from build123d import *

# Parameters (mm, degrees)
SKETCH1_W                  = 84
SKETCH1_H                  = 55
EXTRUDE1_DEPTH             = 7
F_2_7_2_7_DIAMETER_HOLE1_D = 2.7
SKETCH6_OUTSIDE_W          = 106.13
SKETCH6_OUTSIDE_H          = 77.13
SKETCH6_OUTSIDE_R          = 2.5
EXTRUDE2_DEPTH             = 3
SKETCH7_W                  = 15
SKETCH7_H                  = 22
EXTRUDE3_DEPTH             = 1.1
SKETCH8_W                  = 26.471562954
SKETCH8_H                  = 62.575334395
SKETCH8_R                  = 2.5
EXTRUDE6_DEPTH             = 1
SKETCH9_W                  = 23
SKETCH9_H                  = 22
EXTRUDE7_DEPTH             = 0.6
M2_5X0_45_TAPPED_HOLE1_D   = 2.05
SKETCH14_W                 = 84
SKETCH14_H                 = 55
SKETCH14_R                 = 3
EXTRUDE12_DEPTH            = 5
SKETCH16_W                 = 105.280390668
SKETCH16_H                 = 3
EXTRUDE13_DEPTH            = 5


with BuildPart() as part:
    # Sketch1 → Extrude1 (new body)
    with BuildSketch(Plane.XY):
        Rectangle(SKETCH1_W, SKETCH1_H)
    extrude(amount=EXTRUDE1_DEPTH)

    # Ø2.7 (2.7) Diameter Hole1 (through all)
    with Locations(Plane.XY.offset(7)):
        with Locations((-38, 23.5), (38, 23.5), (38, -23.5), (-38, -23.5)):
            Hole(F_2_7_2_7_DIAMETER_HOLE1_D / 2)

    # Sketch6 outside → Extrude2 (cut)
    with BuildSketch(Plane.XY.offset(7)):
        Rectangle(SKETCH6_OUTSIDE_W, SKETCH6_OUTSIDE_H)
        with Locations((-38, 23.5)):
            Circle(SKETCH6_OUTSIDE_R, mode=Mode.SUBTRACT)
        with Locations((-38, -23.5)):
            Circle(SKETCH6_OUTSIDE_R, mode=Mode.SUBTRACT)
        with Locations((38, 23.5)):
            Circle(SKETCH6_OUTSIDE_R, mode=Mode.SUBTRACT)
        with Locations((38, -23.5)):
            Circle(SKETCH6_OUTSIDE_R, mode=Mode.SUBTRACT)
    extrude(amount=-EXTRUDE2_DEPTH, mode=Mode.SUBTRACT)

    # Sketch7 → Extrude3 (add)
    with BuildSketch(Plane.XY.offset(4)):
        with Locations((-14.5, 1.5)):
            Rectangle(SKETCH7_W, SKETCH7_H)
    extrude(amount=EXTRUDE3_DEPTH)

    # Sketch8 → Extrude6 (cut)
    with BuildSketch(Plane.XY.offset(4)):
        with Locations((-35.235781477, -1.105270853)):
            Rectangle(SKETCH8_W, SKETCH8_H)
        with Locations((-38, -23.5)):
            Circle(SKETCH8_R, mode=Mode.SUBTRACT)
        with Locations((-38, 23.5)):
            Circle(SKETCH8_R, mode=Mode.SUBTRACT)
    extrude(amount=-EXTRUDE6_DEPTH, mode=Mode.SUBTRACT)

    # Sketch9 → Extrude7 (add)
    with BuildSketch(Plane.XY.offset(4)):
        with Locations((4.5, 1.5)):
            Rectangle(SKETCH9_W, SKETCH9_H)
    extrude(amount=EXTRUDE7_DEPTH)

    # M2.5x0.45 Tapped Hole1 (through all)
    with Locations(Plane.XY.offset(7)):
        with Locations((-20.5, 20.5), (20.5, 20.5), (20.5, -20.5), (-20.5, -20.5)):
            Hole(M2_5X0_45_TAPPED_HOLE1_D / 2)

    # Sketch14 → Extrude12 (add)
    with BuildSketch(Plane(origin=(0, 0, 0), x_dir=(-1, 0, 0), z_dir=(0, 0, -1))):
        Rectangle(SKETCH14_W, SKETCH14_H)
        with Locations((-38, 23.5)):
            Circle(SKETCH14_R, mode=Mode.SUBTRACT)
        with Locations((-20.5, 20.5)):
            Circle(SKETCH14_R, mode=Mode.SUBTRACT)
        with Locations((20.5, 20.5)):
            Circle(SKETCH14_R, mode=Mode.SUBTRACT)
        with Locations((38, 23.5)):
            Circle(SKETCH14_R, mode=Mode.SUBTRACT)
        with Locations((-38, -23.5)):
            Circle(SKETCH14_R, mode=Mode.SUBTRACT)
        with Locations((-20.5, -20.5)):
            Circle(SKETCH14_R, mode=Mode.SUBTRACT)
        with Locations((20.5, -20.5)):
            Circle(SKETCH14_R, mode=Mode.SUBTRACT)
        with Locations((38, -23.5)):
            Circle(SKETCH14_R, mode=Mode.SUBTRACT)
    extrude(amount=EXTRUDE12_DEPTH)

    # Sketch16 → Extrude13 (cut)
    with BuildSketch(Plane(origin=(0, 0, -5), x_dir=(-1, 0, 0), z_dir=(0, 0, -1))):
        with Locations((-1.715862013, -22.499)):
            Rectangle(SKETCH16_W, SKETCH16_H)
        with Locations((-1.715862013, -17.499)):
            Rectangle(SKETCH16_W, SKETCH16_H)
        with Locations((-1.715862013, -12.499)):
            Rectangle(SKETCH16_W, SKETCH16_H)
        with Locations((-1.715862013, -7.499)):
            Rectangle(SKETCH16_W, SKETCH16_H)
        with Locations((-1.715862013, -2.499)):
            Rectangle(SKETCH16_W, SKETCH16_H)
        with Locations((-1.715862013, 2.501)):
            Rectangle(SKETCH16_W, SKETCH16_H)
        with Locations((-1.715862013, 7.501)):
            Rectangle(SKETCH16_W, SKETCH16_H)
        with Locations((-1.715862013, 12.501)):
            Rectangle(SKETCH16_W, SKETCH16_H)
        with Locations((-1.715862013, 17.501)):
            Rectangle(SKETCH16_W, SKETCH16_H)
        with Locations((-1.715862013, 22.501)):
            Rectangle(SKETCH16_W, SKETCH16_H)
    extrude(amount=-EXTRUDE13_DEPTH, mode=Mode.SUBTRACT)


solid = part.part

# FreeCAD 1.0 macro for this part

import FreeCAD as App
import Part
import Sketcher
from FreeCAD import Vector
Q = App.Units.Quantity


def add_polygon(sketch, points):
    """Adds a closed chain of lines whose ends are joined by coincident constraints."""
    first, n = sketch.GeometryCount, len(points)
    for a, b in zip(points, points[1:] + points[:1]):
        sketch.addGeometry(Part.LineSegment(App.Vector(*a, 0), App.Vector(*b, 0)), False)
    for i in range(n):
        sketch.addConstraint(Sketcher.Constraint("Coincident", first + i, 2, first + (i + 1) % n, 1))

doc = App.newDocument("Part")
params = doc.addObject("Spreadsheet::Sheet", "Params")
for row, (alias, value) in enumerate([
    ("sketch1_width", "84 mm"),
    ("sketch1_height", "55 mm"),
    ("pad1_length", "7 mm"),
    ("sketch2_diameter", "2.7 mm"),
    ("hole_diameter", "2.7 mm"),
    ("sketch3_diameter", "5 mm"),
    ("sketch3_width", "106.13 mm"),
    ("sketch3_height", "77.13 mm"),
    ("pocket1_length", "3 mm"),
    ("sketch4_width", "15 mm"),
    ("sketch4_height", "22 mm"),
    ("pad2_length", "1.1 mm"),
    ("sketch5_diameter", "5 mm"),
    ("pocket2_length", "1 mm"),
    ("sketch6_width", "23 mm"),
    ("sketch6_height", "22 mm"),
    ("pad3_length", "0.6 mm"),
    ("sketch7_diameter", "2.05 mm"),
    ("hole2_diameter", "2.05 mm"),
    ("sketch8_diameter", "6 mm"),
    ("sketch8_width", "84 mm"),
    ("sketch8_height", "55 mm"),
    ("pad4_length", "5 mm"),
    ("sketch9_height", "3 mm"),
    ("pocket3_length", "5 mm"),
], start=1):
    params.set(f"A{row}", alias)
    params.set(f"B{row}", "=" + value)
    params.setAlias(f"B{row}", alias)

body = doc.addObject("PartDesign::Body", "Body")

# Sketch on XY plane
sketch1 = body.newObject("Sketcher::SketchObject", "Sketch")
sketch1.AttachmentSupport = (doc.getObject("XY_Plane"), [""])
sketch1.MapMode = "FlatFace"
add_polygon(sketch1, [(-42, 28), (-42, -28), (42, -28), (42, 28)])  # lines 0-3
sketch1.addConstraint([
    Sketcher.Constraint("Vertical", 0),
    Sketcher.Constraint("Horizontal", 1),
    Sketcher.Constraint("Vertical", 2),
    Sketcher.Constraint("Horizontal", 3),
    Sketcher.Constraint("Symmetric", 0, 2, 2, 2, -1, 1),
    Sketcher.Constraint("DistanceX", 1, 1, 1, 2, Q("84 mm")),
    Sketcher.Constraint("DistanceY", 0, 2, 0, 1, Q("55 mm")),
])
sketch1.setExpression("Constraints[9]", "Params.sketch1_width")
sketch1.setExpression("Constraints[10]", "Params.sketch1_height")
pad1 = body.newObject("PartDesign::Pad", "Pad")
pad1.Profile = sketch1
pad1.setExpression("Length", "Params.pad1_length")

# Sketch on XY plane
sketch2 = body.newObject("Sketcher::SketchObject", "Sketch001")
sketch2.AttachmentSupport = (doc.getObject("XY_Plane"), [""])
sketch2.MapMode = "FlatFace"
sketch2.AttachmentOffset = App.Placement(Vector(0, 0, 7), App.Rotation())
sketch2.addGeometry([
    Part.Circle(Vector(-38, 23.5, 0), Vector(0, 0, 1), 1.4),
    Part.Circle(Vector(38, 23.5, 0), Vector(0, 0, 1), 1.4),
    Part.Circle(Vector(38, -23.5, 0), Vector(0, 0, 1), 1.4),
    Part.Circle(Vector(-38, -23.5, 0), Vector(0, 0, 1), 1.4),
], False)
sketch2.addConstraint([
    Sketcher.Constraint("Equal", 0, 1),
    Sketcher.Constraint("Equal", 1, 2),
    Sketcher.Constraint("Equal", 2, 3),
    Sketcher.Constraint("Symmetric", 0, 3, 2, 3, -1, 1),
    Sketcher.Constraint("Symmetric", 1, 3, 3, 3, -1, 1),
    Sketcher.Constraint("Symmetric", 0, 3, 1, 3, -2),
    Sketcher.Constraint("Diameter", 0, Q("2.7 mm")),
    Sketcher.Constraint("DistanceX", 0, 3, -1, 1, Q("38 mm")),
    Sketcher.Constraint("DistanceY", 2, 3, 1, 3, Q("47 mm")),
])
sketch2.setExpression("Constraints[6]", "Params.sketch2_diameter")
doc.recompute()
hole = body.newObject("PartDesign::Hole", "Hole")
hole.Profile = sketch2
hole.ThreadType = "None"
hole.setExpression("Diameter", "Params.hole_diameter")
hole.DepthType = "ThroughAll"

# Sketch on XY plane
sketch3 = body.newObject("Sketcher::SketchObject", "Sketch002")
sketch3.AttachmentSupport = (doc.getObject("XY_Plane"), [""])
sketch3.MapMode = "FlatFace"
sketch3.AttachmentOffset = App.Placement(Vector(0, 0, 7), App.Rotation())
add_polygon(sketch3, [(-53.1, 38.6), (-53.1, -38.6), (53.1, -38.6), (53.1, 38.6)])  # lines 0-3
sketch3.addGeometry(Part.Circle(Vector(-38, -23.5, 0), Vector(0, 0, 1), 2.5), False)  # 4
sketch3.addGeometry(Part.Circle(Vector(38, -23.5, 0), Vector(0, 0, 1), 2.5), False)  # 5
sketch3.addGeometry(Part.Circle(Vector(-38, 23.5, 0), Vector(0, 0, 1), 2.5), False)  # 6
sketch3.addGeometry(Part.Circle(Vector(38, 23.5, 0), Vector(0, 0, 1), 2.5), False)  # 7
sketch3.addConstraint([
    Sketcher.Constraint("Vertical", 0),
    Sketcher.Constraint("Horizontal", 1),
    Sketcher.Constraint("Vertical", 2),
    Sketcher.Constraint("Horizontal", 3),
    Sketcher.Constraint("Equal", 4, 5),
    Sketcher.Constraint("Equal", 5, 6),
    Sketcher.Constraint("Equal", 6, 7),
    Sketcher.Constraint("Symmetric", 5, 3, 6, 3, -1, 1),
    Sketcher.Constraint("Symmetric", 4, 3, 7, 3, -1, 1),
    Sketcher.Constraint("Symmetric", 0, 2, 2, 2, -1, 1),
    Sketcher.Constraint("Symmetric", 4, 3, 5, 3, -2),
    Sketcher.Constraint("Diameter", 4, Q("5 mm")),
    Sketcher.Constraint("DistanceX", 4, 3, -1, 1, Q("38 mm")),
    Sketcher.Constraint("DistanceY", 4, 3, 6, 3, Q("47 mm")),
    Sketcher.Constraint("DistanceX", 1, 1, 1, 2, Q("106.13 mm")),
    Sketcher.Constraint("DistanceY", 0, 2, 0, 1, Q("77.13 mm")),
])
sketch3.setExpression("Constraints[15]", "Params.sketch3_diameter")
sketch3.setExpression("Constraints[18]", "Params.sketch3_width")
sketch3.setExpression("Constraints[19]", "Params.sketch3_height")
pocket1 = body.newObject("PartDesign::Pocket", "Pocket")
pocket1.Profile = sketch3
pocket1.setExpression("Length", "Params.pocket1_length")

# Sketch on XY plane
sketch4 = body.newObject("Sketcher::SketchObject", "Sketch003")
sketch4.AttachmentSupport = (doc.getObject("XY_Plane"), [""])
sketch4.MapMode = "FlatFace"
sketch4.AttachmentOffset = App.Placement(Vector(0, 0, 4), App.Rotation())
add_polygon(sketch4, [(-22, 12), (-22, -10), (-7, -10), (-7, 12)])  # lines 0-3
sketch4.addConstraint([
    Sketcher.Constraint("Vertical", 0),
    Sketcher.Constraint("Horizontal", 1),
    Sketcher.Constraint("Vertical", 2),
    Sketcher.Constraint("Horizontal", 3),
    Sketcher.Constraint("DistanceX", 1, 1, 1, 2, Q("15 mm")),
    Sketcher.Constraint("DistanceY", 0, 2, 0, 1, Q("22 mm")),
    Sketcher.Constraint("DistanceX", 0, 2, -1, 1, Q("22 mm")),
    Sketcher.Constraint("DistanceY", 0, 2, -1, 1, Q("9.5 mm")),
])
sketch4.setExpression("Constraints[8]", "Params.sketch4_width")
sketch4.setExpression("Constraints[9]", "Params.sketch4_height")
pad2 = body.newObject("PartDesign::Pad", "Pad001")
pad2.Profile = sketch4
pad2.setExpression("Length", "Params.pad2_length")

# Sketch on XY plane
sketch5 = body.newObject("Sketcher::SketchObject", "Sketch004")
sketch5.AttachmentSupport = (doc.getObject("XY_Plane"), [""])
sketch5.MapMode = "FlatFace"
sketch5.AttachmentOffset = App.Placement(Vector(0, 0, 4), App.Rotation())
add_polygon(sketch5, [(-48.5, 30.2), (-48.5, -32.4), (-22, -32.4), (-22, 30.2)])  # lines 0-3
sketch5.addGeometry(Part.Circle(Vector(-38, -23.5, 0), Vector(0, 0, 1), 2.5), False)  # 4
sketch5.addGeometry(Part.Circle(Vector(-38, 23.5, 0), Vector(0, 0, 1), 2.5), False)  # 5
sketch5.addConstraint([
    Sketcher.Constraint("Vertical", 0),
    Sketcher.Constraint("Horizontal", 1),
    Sketcher.Constraint("Vertical", 2),
    Sketcher.Constraint("Horizontal", 3),
    Sketcher.Constraint("Equal", 4, 5),
    Sketcher.Constraint("Symmetric", 4, 3, 5, 3, -1),
    Sketcher.Constraint("Diameter", 4, Q("5 mm")),
    Sketcher.Constraint("DistanceX", 4, 3, -1, 1, Q("38 mm")),
    Sketcher.Constraint("DistanceX", 1, 2, -1, 1, Q("22 mm")),
    Sketcher.Constraint("DistanceY", 4, 3, 5, 3, Q("47 mm")),
    Sketcher.Constraint("DistanceX", 1, 1, 1, 2, Q("26.471563 mm")),
    Sketcher.Constraint("DistanceY", 0, 2, 0, 1, Q("62.575334 mm")),
    Sketcher.Constraint("DistanceY", 0, 2, -1, 1, Q("32.392938 mm")),
])
sketch5.setExpression("Constraints[10]", "Params.sketch5_diameter")
pocket2 = body.newObject("PartDesign::Pocket", "Pocket001")
pocket2.Profile = sketch5
pocket2.setExpression("Length", "Params.pocket2_length")

# Sketch on XY plane
sketch6 = body.newObject("Sketcher::SketchObject", "Sketch005")
sketch6.AttachmentSupport = (doc.getObject("XY_Plane"), [""])
sketch6.MapMode = "FlatFace"
sketch6.AttachmentOffset = App.Placement(Vector(0, 0, 4), App.Rotation())
add_polygon(sketch6, [(-7, 12), (-7, -10), (16, -10), (16, 12)])  # lines 0-3
sketch6.addConstraint([
    Sketcher.Constraint("Vertical", 0),
    Sketcher.Constraint("Horizontal", 1),
    Sketcher.Constraint("Vertical", 2),
    Sketcher.Constraint("Horizontal", 3),
    Sketcher.Constraint("DistanceX", 1, 1, 1, 2, Q("23 mm")),
    Sketcher.Constraint("DistanceY", 0, 2, 0, 1, Q("22 mm")),
    Sketcher.Constraint("DistanceX", 0, 2, -1, 1, Q("7 mm")),
    Sketcher.Constraint("DistanceY", 0, 2, -1, 1, Q("9.5 mm")),
])
sketch6.setExpression("Constraints[8]", "Params.sketch6_width")
sketch6.setExpression("Constraints[9]", "Params.sketch6_height")
pad3 = body.newObject("PartDesign::Pad", "Pad002")
pad3.Profile = sketch6
pad3.setExpression("Length", "Params.pad3_length")

# Sketch on XY plane
sketch7 = body.newObject("Sketcher::SketchObject", "Sketch006")
sketch7.AttachmentSupport = (doc.getObject("XY_Plane"), [""])
sketch7.MapMode = "FlatFace"
sketch7.AttachmentOffset = App.Placement(Vector(0, 0, 7), App.Rotation())
sketch7.addGeometry([
    Part.Circle(Vector(-20.5, 20.5, 0), Vector(0, 0, 1), 1),
    Part.Circle(Vector(20.5, 20.5, 0), Vector(0, 0, 1), 1),
    Part.Circle(Vector(20.5, -20.5, 0), Vector(0, 0, 1), 1),
    Part.Circle(Vector(-20.5, -20.5, 0), Vector(0, 0, 1), 1),
], False)
sketch7.addConstraint([
    Sketcher.Constraint("Equal", 0, 1),
    Sketcher.Constraint("Equal", 1, 2),
    Sketcher.Constraint("Equal", 2, 3),
    Sketcher.Constraint("Symmetric", 0, 3, 2, 3, -1, 1),
    Sketcher.Constraint("Symmetric", 1, 3, 3, 3, -1, 1),
    Sketcher.Constraint("Symmetric", 0, 3, 1, 3, -2),
    Sketcher.Constraint("Diameter", 0, Q("2.05 mm")),
    Sketcher.Constraint("DistanceX", 0, 3, 1, 3, Q("41 mm")),
    Sketcher.Constraint("DistanceY", 2, 3, 1, 3, Q("41 mm")),
])
sketch7.setExpression("Constraints[6]", "Params.sketch7_diameter")
doc.recompute()
hole2 = body.newObject("PartDesign::Hole", "Hole001")
hole2.Profile = sketch7
hole2.ThreadType = "None"
hole2.setExpression("Diameter", "Params.hole2_diameter")
hole2.DepthType = "ThroughAll"

# Sketch on XY plane
sketch8 = body.newObject("Sketcher::SketchObject", "Sketch007")
sketch8.AttachmentSupport = (doc.getObject("XY_Plane"), [""])
sketch8.MapMode = "FlatFace"
add_polygon(sketch8, [(42, 27.5), (42, -27.5), (-42, -27.5), (-42, 27.5)])  # lines 0-3
sketch8.addGeometry(Part.Circle(Vector(38, -23.5, 0), Vector(0, 0, 1), 3), False)  # 4
sketch8.addGeometry(Part.Circle(Vector(20.5, -20.5, 0), Vector(0, 0, 1), 3), False)  # 5
sketch8.addGeometry(Part.Circle(Vector(-20.5, -20.5, 0), Vector(0, 0, 1), 3), False)  # 6
sketch8.addGeometry(Part.Circle(Vector(-38, -23.5, 0), Vector(0, 0, 1), 3), False)  # 7
sketch8.addGeometry(Part.Circle(Vector(38, 23.5, 0), Vector(0, 0, 1), 3), False)  # 8
sketch8.addGeometry(Part.Circle(Vector(20.5, 20.5, 0), Vector(0, 0, 1), 3), False)  # 9
sketch8.addGeometry(Part.Circle(Vector(-20.5, 20.5, 0), Vector(0, 0, 1), 3), False)  # 10
sketch8.addGeometry(Part.Circle(Vector(-38, 23.5, 0), Vector(0, 0, 1), 3), False)  # 11
sketch8.addConstraint([
    Sketcher.Constraint("Vertical", 0),
    Sketcher.Constraint("Horizontal", 1),
    Sketcher.Constraint("Vertical", 2),
    Sketcher.Constraint("Horizontal", 3),
    Sketcher.Constraint("Equal", 4, 5),
    Sketcher.Constraint("Equal", 5, 6),
    Sketcher.Constraint("Equal", 6, 7),
    Sketcher.Constraint("Equal", 7, 8),
    Sketcher.Constraint("Equal", 8, 9),
    Sketcher.Constraint("Equal", 9, 10),
    Sketcher.Constraint("Equal", 10, 11),
    Sketcher.Constraint("Symmetric", 7, 3, 8, 3, -1, 1),
    Sketcher.Constraint("Symmetric", 6, 3, 9, 3, -1, 1),
    Sketcher.Constraint("Symmetric", 5, 3, 10, 3, -1, 1),
    Sketcher.Constraint("Symmetric", 4, 3, 11, 3, -1, 1),
    Sketcher.Constraint("Symmetric", 0, 2, 2, 2, -1, 1),
    Sketcher.Constraint("Symmetric", 5, 3, 6, 3, -2),
    Sketcher.Constraint("Symmetric", 4, 3, 7, 3, -2),
    Sketcher.Constraint("Diameter", 4, Q("6 mm")),
    Sketcher.Constraint("DistanceX", 1, 2, 1, 1, Q("84 mm")),
    Sketcher.Constraint("DistanceY", 0, 2, 0, 1, Q("55 mm")),
    Sketcher.Constraint("DistanceX", -1, 1, 4, 3, Q("38 mm")),
    Sketcher.Constraint("DistanceY", 4, 3, 5, 3, Q("3 mm")),
    Sketcher.Constraint("DistanceX", 6, 3, 5, 3, Q("41 mm")),
    Sketcher.Constraint("DistanceY", 4, 3, 8, 3, Q("47 mm")),
])
sketch8.setExpression("Constraints[22]", "Params.sketch8_diameter")
sketch8.setExpression("Constraints[23]", "Params.sketch8_width")
sketch8.setExpression("Constraints[24]", "Params.sketch8_height")
pad4 = body.newObject("PartDesign::Pad", "Pad003")
pad4.Profile = sketch8
pad4.setExpression("Length", "Params.pad4_length")
pad4.Reversed = True

# Sketch on XY plane
sketch9 = body.newObject("Sketcher::SketchObject", "Sketch008")
sketch9.AttachmentSupport = (doc.getObject("XY_Plane"), [""])
sketch9.MapMode = "FlatFace"
sketch9.AttachmentOffset = App.Placement(Vector(0, 0, -5), App.Rotation())
add_polygon(sketch9, [(54.4, -21), (54.4, -24), (-50.9, -24), (-50.9, -21)])  # lines 0-3
add_polygon(sketch9, [(54.4, -16), (54.4, -19), (-50.9, -19), (-50.9, -16)])  # lines 4-7
add_polygon(sketch9, [(54.4, -11), (54.4, -14), (-50.9, -14), (-50.9, -11)])  # lines 8-11
add_polygon(sketch9, [(54.4, -6), (54.4, -9), (-50.9, -9), (-50.9, -6)])  # lines 12-15
add_polygon(sketch9, [(54.4, -1), (54.4, -4), (-50.9, -4), (-50.9, -1)])  # lines 16-19
add_polygon(sketch9, [(54.4, 4), (54.4, 1), (-50.9, 1), (-50.9, 4)])  # lines 20-23
add_polygon(sketch9, [(54.4, 9), (54.4, 6), (-50.9, 6), (-50.9, 9)])  # lines 24-27
add_polygon(sketch9, [(54.4, 14), (54.4, 11), (-50.9, 11), (-50.9, 14)])  # lines 28-31
add_polygon(sketch9, [(54.4, 19), (54.4, 16), (-50.9, 16), (-50.9, 19)])  # lines 32-35
add_polygon(sketch9, [(54.4, 24), (54.4, 21), (-50.9, 21), (-50.9, 24)])  # lines 36-39
sketch9.addConstraint([
    Sketcher.Constraint("Vertical", 0),
    Sketcher.Constraint("Horizontal", 1),
    Sketcher.Constraint("Vertical", 2),
    Sketcher.Constraint("Horizontal", 3),
    Sketcher.Constraint("Vertical", 4),
    Sketcher.Constraint("Horizontal", 5),
    Sketcher.Constraint("Vertical", 6),
    Sketcher.Constraint("Horizontal", 7),
    Sketcher.Constraint("Vertical", 8),
    Sketcher.Constraint("Horizontal", 9),
    Sketcher.Constraint("Vertical", 10),
    Sketcher.Constraint("Horizontal", 11),
    Sketcher.Constraint("Vertical", 12),
    Sketcher.Constraint("Horizontal", 13),
    Sketcher.Constraint("Vertical", 14),
    Sketcher.Constraint("Horizontal", 15),
    Sketcher.Constraint("Vertical", 16),
    Sketcher.Constraint("Horizontal", 17),
    Sketcher.Constraint("Vertical", 18),
    Sketcher.Constraint("Horizontal", 19),
    Sketcher.Constraint("Vertical", 20),
    Sketcher.Constraint("Horizontal", 21),
    Sketcher.Constraint("Vertical", 22),
    Sketcher.Constraint("Horizontal", 23),
    Sketcher.Constraint("Vertical", 24),
    Sketcher.Constraint("Horizontal", 25),
    Sketcher.Constraint("Vertical", 26),
    Sketcher.Constraint("Horizontal", 27),
    Sketcher.Constraint("Vertical", 28),
    Sketcher.Constraint("Horizontal", 29),
    Sketcher.Constraint("Vertical", 30),
    Sketcher.Constraint("Horizontal", 31),
    Sketcher.Constraint("Vertical", 32),
    Sketcher.Constraint("Horizontal", 33),
    Sketcher.Constraint("Vertical", 34),
    Sketcher.Constraint("Horizontal", 35),
    Sketcher.Constraint("Vertical", 36),
    Sketcher.Constraint("Horizontal", 37),
    Sketcher.Constraint("Vertical", 38),
    Sketcher.Constraint("Horizontal", 39),
    Sketcher.Constraint("Vertical", 3, 2, 4, 2),
    Sketcher.Constraint("Vertical", 2, 2, 5, 2),
    Sketcher.Constraint("Vertical", 7, 2, 8, 2),
    Sketcher.Constraint("Vertical", 6, 2, 9, 2),
    Sketcher.Constraint("Vertical", 11, 2, 12, 2),
    Sketcher.Constraint("Vertical", 10, 2, 13, 2),
    Sketcher.Constraint("Vertical", 15, 2, 16, 2),
    Sketcher.Constraint("Vertical", 14, 2, 17, 2),
    Sketcher.Constraint("Vertical", 19, 2, 20, 2),
    Sketcher.Constraint("Vertical", 18, 2, 21, 2),
    Sketcher.Constraint("Vertical", 23, 2, 24, 2),
    Sketcher.Constraint("Vertical", 22, 2, 25, 2),
    Sketcher.Constraint("Vertical", 27, 2, 28, 2),
    Sketcher.Constraint("Vertical", 26, 2, 29, 2),
    Sketcher.Constraint("Vertical", 31, 2, 32, 2),
    Sketcher.Constraint("Vertical", 30, 2, 33, 2),
    Sketcher.Constraint("Vertical", 35, 2, 36, 2),
    Sketcher.Constraint("Vertical", 34, 2, 37, 2),
    Sketcher.Constraint("Equal", 2, 4),
    Sketcher.Constraint("Equal", 6, 8),
    Sketcher.Constraint("Equal", 10, 12),
    Sketcher.Constraint("Equal", 14, 16),
    Sketcher.Constraint("Equal", 18, 20),
    Sketcher.Constraint("Equal", 22, 24),
    Sketcher.Constraint("Equal", 26, 28),
    Sketcher.Constraint("Equal", 30, 32),
    Sketcher.Constraint("Equal", 34, 36),
    Sketcher.Constraint("DistanceY", 0, 2, 0, 1, Q("3 mm")),
    Sketcher.Constraint("DistanceY", 3, 2, 4, 2, Q("2 mm")),
    Sketcher.Constraint("DistanceY", 7, 2, 8, 2, Q("2 mm")),
    Sketcher.Constraint("DistanceY", 11, 2, 12, 2, Q("2 mm")),
    Sketcher.Constraint("DistanceY", 15, 2, 16, 2, Q("2 mm")),
    Sketcher.Constraint("DistanceY", 19, 2, 20, 2, Q("2 mm")),
    Sketcher.Constraint("DistanceY", 23, 2, 24, 2, Q("2 mm")),
    Sketcher.Constraint("DistanceY", 27, 2, 28, 2, Q("2 mm")),
    Sketcher.Constraint("DistanceY", 31, 2, 32, 2, Q("2 mm")),
    Sketcher.Constraint("DistanceY", 35, 2, 36, 2, Q("2 mm")),
    Sketcher.Constraint("DistanceY", 0, 2, -1, 1, Q("23.999 mm")),
    Sketcher.Constraint("DistanceX", 1, 2, 1, 1, Q("105.280391 mm")),
    Sketcher.Constraint("DistanceX", -1, 1, 0, 2, Q("54.356057 mm")),
])
sketch9.setExpression("Constraints[107]", "Params.sketch9_height")
pocket3 = body.newObject("PartDesign::Pocket", "Pocket002")
pocket3.Profile = sketch9
pocket3.setExpression("Length", "Params.pocket3_length")
pocket3.Reversed = True

doc.recompute()
